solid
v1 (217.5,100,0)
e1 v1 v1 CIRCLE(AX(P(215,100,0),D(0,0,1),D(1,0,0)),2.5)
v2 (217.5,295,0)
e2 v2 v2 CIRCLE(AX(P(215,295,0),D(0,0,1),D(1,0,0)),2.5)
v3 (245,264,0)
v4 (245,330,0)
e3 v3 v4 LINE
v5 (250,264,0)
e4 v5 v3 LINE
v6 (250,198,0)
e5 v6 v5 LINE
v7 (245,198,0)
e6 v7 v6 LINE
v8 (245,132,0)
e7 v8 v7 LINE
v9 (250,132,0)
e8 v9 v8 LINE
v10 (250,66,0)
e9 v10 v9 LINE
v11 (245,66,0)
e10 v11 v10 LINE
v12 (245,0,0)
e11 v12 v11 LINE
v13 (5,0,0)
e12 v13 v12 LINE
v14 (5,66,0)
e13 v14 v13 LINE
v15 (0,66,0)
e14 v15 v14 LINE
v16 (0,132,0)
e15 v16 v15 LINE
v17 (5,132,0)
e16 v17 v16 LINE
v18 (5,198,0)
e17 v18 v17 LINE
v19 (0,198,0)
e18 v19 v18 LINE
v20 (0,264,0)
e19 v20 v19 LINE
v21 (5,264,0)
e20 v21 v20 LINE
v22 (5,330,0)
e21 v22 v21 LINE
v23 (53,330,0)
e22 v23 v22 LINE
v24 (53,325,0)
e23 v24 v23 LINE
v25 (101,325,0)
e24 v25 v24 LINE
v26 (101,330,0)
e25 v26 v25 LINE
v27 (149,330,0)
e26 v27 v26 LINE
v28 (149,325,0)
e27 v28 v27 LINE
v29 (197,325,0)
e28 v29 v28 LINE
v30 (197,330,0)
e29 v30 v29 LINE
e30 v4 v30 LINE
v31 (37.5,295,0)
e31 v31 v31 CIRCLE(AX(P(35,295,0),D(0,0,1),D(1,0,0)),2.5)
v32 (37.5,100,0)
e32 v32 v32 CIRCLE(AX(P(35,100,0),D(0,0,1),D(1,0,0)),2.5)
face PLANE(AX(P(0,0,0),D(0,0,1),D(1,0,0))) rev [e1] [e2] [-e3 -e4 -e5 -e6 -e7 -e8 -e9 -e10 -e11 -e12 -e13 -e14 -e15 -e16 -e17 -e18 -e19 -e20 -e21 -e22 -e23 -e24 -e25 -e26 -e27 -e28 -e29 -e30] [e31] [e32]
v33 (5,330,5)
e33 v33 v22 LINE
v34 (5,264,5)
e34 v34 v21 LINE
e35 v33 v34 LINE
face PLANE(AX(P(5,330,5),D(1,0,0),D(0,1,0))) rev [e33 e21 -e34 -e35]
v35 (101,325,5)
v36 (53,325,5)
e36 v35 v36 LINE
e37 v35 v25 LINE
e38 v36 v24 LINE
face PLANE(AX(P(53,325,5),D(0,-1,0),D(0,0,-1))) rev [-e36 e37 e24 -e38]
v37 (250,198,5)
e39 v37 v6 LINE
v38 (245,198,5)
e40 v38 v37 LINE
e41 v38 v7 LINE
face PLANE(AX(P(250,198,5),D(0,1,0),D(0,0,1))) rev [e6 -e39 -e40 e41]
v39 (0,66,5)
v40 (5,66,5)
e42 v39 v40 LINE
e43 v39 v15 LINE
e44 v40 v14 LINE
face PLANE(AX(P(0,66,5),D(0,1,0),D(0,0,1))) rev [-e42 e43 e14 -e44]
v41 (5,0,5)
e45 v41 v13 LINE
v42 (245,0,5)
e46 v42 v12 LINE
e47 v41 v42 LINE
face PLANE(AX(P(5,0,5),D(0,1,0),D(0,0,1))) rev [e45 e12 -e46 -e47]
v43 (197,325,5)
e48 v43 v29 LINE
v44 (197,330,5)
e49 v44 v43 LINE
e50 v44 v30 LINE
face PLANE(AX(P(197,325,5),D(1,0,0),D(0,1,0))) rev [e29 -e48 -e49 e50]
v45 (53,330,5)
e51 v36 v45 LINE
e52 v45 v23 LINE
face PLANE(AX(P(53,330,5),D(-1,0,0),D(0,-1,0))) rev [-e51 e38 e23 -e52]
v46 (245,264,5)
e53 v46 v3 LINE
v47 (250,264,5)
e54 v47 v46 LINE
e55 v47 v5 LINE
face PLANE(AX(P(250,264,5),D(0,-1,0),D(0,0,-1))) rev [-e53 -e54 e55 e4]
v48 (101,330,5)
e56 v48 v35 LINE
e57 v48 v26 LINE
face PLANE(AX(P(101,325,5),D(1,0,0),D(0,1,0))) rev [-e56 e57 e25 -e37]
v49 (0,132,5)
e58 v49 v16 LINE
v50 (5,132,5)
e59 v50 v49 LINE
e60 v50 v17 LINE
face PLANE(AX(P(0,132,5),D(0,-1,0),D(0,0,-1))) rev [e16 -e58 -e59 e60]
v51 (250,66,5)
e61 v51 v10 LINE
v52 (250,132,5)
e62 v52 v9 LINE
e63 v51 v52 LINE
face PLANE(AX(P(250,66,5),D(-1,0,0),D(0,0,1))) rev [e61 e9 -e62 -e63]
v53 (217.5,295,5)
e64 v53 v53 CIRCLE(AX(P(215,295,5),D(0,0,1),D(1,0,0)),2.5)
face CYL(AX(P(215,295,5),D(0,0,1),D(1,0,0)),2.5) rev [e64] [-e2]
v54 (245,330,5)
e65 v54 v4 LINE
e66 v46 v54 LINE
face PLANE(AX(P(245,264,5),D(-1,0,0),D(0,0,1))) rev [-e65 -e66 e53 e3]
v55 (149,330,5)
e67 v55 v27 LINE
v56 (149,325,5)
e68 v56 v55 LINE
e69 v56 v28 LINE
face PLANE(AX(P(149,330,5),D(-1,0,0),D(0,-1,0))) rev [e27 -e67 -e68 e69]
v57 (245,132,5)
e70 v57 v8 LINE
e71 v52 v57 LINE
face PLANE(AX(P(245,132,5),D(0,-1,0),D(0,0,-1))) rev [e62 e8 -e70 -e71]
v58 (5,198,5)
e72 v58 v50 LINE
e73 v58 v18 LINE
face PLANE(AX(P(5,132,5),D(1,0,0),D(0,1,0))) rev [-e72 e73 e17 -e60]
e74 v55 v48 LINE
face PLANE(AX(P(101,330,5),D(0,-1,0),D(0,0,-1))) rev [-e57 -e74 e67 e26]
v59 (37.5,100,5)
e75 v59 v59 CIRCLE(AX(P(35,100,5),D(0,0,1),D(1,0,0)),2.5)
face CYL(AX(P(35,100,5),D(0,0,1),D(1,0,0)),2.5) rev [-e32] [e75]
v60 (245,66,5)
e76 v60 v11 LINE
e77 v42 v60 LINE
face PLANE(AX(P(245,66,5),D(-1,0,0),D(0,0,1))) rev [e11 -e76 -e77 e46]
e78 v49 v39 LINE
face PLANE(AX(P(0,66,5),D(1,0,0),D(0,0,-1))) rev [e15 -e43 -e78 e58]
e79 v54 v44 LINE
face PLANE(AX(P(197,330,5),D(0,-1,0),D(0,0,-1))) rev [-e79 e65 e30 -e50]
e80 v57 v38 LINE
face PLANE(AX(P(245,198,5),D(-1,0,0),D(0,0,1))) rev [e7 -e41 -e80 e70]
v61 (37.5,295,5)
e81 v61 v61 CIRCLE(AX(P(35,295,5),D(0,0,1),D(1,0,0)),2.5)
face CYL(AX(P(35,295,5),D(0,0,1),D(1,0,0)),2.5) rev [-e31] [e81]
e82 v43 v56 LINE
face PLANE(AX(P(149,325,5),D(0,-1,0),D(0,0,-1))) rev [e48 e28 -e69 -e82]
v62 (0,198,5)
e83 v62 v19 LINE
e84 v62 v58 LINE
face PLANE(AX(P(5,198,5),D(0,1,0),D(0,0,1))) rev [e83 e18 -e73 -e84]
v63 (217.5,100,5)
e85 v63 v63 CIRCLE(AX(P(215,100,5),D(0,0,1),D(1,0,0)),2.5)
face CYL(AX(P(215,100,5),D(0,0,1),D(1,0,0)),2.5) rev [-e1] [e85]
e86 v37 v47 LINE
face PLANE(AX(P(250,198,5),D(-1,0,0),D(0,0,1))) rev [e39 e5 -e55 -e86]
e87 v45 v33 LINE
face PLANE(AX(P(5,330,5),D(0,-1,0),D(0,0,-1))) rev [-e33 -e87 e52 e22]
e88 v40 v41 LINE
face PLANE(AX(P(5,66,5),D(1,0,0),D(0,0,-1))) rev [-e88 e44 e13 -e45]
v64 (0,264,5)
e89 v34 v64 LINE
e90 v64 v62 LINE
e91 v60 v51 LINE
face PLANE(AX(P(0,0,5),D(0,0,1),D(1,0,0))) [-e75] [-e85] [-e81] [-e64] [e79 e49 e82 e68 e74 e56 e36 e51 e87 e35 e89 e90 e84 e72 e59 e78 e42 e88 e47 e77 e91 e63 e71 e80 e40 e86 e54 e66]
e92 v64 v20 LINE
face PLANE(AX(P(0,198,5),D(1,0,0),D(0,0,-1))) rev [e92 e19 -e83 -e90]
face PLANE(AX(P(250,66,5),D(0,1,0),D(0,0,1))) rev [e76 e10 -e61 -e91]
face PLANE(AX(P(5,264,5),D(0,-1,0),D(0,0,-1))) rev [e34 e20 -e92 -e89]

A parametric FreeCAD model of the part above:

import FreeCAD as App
import Part
import Sketcher

V = App.Vector


def add_polygon(sketch, points):
    """Adds a closed chain of lines whose ends are joined by coincident constraints."""
    first, n = sketch.GeometryCount, len(points)
    for a, b in zip(points, points[1:] + points[:1]):
        sketch.addGeometry(Part.LineSegment(App.Vector(*a, 0), App.Vector(*b, 0)), False)
    for i in range(n):
        sketch.addConstraint(Sketcher.Constraint("Coincident", first + i, 2, first + (i + 1) % n, 1))

doc = App.newDocument("Part")
body = doc.addObject("PartDesign::Body", "Body")

sketch1 = body.newObject("Sketcher::SketchObject", "Sketch")
sketch1.AttachmentSupport = (doc.getObject("XY_Plane"), [""])
sketch1.MapMode = "FlatFace"
add_polygon(sketch1, [(0, 66), (5, 66), (5, 0), (245, 0), (245, 66), (250, 66), (250, 132), (245, 132), (245, 198), (250, 198), (250, 264), (245, 264), (245, 330), (197, 330), (197, 325), (149, 325), (149, 330), (101, 330), (101, 325), (53, 325), (53, 330), (5, 330), (5, 264), (0, 264), (0, 198), (5, 198), (5, 132), (0, 132)])
sketch1.addConstraint([
    Sketcher.Constraint("Horizontal", 0),
    Sketcher.Constraint("Vertical", 1),
    Sketcher.Constraint("Horizontal", 2),
    Sketcher.Constraint("Vertical", 3),
    Sketcher.Constraint("Horizontal", 4),
    Sketcher.Constraint("Vertical", 5),
    Sketcher.Constraint("Horizontal", 6),
    Sketcher.Constraint("Vertical", 7),
    Sketcher.Constraint("Horizontal", 8),
    Sketcher.Constraint("Vertical", 9),
    Sketcher.Constraint("Horizontal", 10),
    Sketcher.Constraint("Vertical", 11),
    Sketcher.Constraint("Horizontal", 12),
    Sketcher.Constraint("Vertical", 13),
    Sketcher.Constraint("Horizontal", 14),
    Sketcher.Constraint("Vertical", 15),
    Sketcher.Constraint("Horizontal", 16),
    Sketcher.Constraint("Vertical", 17),
    Sketcher.Constraint("Horizontal", 18),
    Sketcher.Constraint("Vertical", 19),
    Sketcher.Constraint("Horizontal", 20),
    Sketcher.Constraint("Vertical", 21),
    Sketcher.Constraint("Horizontal", 22),
    Sketcher.Constraint("Vertical", 23),
    Sketcher.Constraint("Horizontal", 24),
    Sketcher.Constraint("Vertical", 25),
    Sketcher.Constraint("Horizontal", 26),
    Sketcher.Constraint("Vertical", 27),
    Sketcher.Constraint("PointOnObject", 1, 2, -1),
    Sketcher.Constraint("PointOnObject", 22, 2, -2),
    Sketcher.Constraint("PointOnObject", 26, 2, -2),
    Sketcher.Constraint("Horizontal", 0, 2, 3, 2),
    Sketcher.Constraint("Horizontal", 12, 2, 15, 2),
    Sketcher.Constraint("Horizontal", 14, 2, 17, 2),
    Sketcher.Constraint("Horizontal", 16, 2, 19, 2),
    Sketcher.Constraint("Horizontal", 10, 2, 21, 2),
    Sketcher.Constraint("Horizontal", 8, 2, 23, 2),
    Sketcher.Constraint("Horizontal", 6, 2, 25, 2),
    Sketcher.Constraint("Vertical", 3, 2, 6, 2),
    Sketcher.Constraint("Vertical", 5, 2, 8, 2),
    Sketcher.Constraint("Vertical", 7, 2, 10, 2),
    Sketcher.Constraint("Vertical", 1, 2, 20, 2),
    Sketcher.Constraint("Vertical", 21, 2, 24, 2),
    Sketcher.Constraint("Equal", 0, 4),
    Sketcher.Constraint("Equal", 12, 14),
    Sketcher.Constraint("Equal", 14, 16),
    Sketcher.Constraint("Equal", 16, 18),
    Sketcher.Constraint("Equal", 18, 20),
    Sketcher.Constraint("Equal", 3, 5),
    Sketcher.Constraint("Equal", 5, 7),
    Sketcher.Constraint("Equal", 7, 9),
    Sketcher.Constraint("Equal", 9, 11),
    Sketcher.Constraint("Equal", 26, 13),
    Sketcher.Constraint("DistanceX", 0, 1, 0, 2, 5.0),
    Sketcher.Constraint("DistanceX", 2, 1, 2, 2, 240.0),
    Sketcher.Constraint("DistanceY", 1, 2, 1, 1, 66.0),
])
pad1 = body.newObject("PartDesign::Pad", "Pad")
pad1.Profile = sketch1
pad1.Length = 5

sketch2 = body.newObject("Sketcher::SketchObject", "Sketch001")
sketch2.AttachmentSupport = (doc.getObject("XY_Plane"), [""])
sketch2.MapMode = "FlatFace"
sketch2.AttachmentOffset = App.Placement(V(0, 0, 5), App.Rotation())
sketch2.addGeometry([
    Part.Circle(V(35, 295, 0), V(0, 0, 1), 2.5),
    Part.Circle(V(215, 295, 0), V(0, 0, 1), 2.5),
    Part.Circle(V(215, 100, 0), V(0, 0, 1), 2.5),
    Part.Circle(V(35, 100, 0), V(0, 0, 1), 2.5),
], False)
sketch2.addConstraint([
    Sketcher.Constraint("Equal", 0, 1),
    Sketcher.Constraint("Equal", 1, 2),
    Sketcher.Constraint("Equal", 2, 3),
    Sketcher.Constraint("Horizontal", 0, 3, 1, 3),
    Sketcher.Constraint("Horizontal", 2, 3, 3, 3),
    Sketcher.Constraint("Vertical", 1, 3, 2, 3),
    Sketcher.Constraint("Vertical", 0, 3, 3, 3),
    Sketcher.Constraint("Diameter", 0, 5.0),
    Sketcher.Constraint("DistanceX", -1, 1, 0, 3, 35.0),
    Sketcher.Constraint("DistanceY", -1, 1, 0, 3, 295.0),
    Sketcher.Constraint("DistanceX", -1, 1, 1, 3, 215.0),
    Sketcher.Constraint("DistanceY", -1, 1, 2, 3, 100.0),
])
doc.recompute()
hole = body.newObject("PartDesign::Hole", "Hole")
hole.Profile = sketch2
hole.ThreadType = "None"
hole.Diameter = 5
hole.DepthType = "Dimension"
hole.Depth = 5
hole.DrillPoint = "Flat"

doc.recompute()
